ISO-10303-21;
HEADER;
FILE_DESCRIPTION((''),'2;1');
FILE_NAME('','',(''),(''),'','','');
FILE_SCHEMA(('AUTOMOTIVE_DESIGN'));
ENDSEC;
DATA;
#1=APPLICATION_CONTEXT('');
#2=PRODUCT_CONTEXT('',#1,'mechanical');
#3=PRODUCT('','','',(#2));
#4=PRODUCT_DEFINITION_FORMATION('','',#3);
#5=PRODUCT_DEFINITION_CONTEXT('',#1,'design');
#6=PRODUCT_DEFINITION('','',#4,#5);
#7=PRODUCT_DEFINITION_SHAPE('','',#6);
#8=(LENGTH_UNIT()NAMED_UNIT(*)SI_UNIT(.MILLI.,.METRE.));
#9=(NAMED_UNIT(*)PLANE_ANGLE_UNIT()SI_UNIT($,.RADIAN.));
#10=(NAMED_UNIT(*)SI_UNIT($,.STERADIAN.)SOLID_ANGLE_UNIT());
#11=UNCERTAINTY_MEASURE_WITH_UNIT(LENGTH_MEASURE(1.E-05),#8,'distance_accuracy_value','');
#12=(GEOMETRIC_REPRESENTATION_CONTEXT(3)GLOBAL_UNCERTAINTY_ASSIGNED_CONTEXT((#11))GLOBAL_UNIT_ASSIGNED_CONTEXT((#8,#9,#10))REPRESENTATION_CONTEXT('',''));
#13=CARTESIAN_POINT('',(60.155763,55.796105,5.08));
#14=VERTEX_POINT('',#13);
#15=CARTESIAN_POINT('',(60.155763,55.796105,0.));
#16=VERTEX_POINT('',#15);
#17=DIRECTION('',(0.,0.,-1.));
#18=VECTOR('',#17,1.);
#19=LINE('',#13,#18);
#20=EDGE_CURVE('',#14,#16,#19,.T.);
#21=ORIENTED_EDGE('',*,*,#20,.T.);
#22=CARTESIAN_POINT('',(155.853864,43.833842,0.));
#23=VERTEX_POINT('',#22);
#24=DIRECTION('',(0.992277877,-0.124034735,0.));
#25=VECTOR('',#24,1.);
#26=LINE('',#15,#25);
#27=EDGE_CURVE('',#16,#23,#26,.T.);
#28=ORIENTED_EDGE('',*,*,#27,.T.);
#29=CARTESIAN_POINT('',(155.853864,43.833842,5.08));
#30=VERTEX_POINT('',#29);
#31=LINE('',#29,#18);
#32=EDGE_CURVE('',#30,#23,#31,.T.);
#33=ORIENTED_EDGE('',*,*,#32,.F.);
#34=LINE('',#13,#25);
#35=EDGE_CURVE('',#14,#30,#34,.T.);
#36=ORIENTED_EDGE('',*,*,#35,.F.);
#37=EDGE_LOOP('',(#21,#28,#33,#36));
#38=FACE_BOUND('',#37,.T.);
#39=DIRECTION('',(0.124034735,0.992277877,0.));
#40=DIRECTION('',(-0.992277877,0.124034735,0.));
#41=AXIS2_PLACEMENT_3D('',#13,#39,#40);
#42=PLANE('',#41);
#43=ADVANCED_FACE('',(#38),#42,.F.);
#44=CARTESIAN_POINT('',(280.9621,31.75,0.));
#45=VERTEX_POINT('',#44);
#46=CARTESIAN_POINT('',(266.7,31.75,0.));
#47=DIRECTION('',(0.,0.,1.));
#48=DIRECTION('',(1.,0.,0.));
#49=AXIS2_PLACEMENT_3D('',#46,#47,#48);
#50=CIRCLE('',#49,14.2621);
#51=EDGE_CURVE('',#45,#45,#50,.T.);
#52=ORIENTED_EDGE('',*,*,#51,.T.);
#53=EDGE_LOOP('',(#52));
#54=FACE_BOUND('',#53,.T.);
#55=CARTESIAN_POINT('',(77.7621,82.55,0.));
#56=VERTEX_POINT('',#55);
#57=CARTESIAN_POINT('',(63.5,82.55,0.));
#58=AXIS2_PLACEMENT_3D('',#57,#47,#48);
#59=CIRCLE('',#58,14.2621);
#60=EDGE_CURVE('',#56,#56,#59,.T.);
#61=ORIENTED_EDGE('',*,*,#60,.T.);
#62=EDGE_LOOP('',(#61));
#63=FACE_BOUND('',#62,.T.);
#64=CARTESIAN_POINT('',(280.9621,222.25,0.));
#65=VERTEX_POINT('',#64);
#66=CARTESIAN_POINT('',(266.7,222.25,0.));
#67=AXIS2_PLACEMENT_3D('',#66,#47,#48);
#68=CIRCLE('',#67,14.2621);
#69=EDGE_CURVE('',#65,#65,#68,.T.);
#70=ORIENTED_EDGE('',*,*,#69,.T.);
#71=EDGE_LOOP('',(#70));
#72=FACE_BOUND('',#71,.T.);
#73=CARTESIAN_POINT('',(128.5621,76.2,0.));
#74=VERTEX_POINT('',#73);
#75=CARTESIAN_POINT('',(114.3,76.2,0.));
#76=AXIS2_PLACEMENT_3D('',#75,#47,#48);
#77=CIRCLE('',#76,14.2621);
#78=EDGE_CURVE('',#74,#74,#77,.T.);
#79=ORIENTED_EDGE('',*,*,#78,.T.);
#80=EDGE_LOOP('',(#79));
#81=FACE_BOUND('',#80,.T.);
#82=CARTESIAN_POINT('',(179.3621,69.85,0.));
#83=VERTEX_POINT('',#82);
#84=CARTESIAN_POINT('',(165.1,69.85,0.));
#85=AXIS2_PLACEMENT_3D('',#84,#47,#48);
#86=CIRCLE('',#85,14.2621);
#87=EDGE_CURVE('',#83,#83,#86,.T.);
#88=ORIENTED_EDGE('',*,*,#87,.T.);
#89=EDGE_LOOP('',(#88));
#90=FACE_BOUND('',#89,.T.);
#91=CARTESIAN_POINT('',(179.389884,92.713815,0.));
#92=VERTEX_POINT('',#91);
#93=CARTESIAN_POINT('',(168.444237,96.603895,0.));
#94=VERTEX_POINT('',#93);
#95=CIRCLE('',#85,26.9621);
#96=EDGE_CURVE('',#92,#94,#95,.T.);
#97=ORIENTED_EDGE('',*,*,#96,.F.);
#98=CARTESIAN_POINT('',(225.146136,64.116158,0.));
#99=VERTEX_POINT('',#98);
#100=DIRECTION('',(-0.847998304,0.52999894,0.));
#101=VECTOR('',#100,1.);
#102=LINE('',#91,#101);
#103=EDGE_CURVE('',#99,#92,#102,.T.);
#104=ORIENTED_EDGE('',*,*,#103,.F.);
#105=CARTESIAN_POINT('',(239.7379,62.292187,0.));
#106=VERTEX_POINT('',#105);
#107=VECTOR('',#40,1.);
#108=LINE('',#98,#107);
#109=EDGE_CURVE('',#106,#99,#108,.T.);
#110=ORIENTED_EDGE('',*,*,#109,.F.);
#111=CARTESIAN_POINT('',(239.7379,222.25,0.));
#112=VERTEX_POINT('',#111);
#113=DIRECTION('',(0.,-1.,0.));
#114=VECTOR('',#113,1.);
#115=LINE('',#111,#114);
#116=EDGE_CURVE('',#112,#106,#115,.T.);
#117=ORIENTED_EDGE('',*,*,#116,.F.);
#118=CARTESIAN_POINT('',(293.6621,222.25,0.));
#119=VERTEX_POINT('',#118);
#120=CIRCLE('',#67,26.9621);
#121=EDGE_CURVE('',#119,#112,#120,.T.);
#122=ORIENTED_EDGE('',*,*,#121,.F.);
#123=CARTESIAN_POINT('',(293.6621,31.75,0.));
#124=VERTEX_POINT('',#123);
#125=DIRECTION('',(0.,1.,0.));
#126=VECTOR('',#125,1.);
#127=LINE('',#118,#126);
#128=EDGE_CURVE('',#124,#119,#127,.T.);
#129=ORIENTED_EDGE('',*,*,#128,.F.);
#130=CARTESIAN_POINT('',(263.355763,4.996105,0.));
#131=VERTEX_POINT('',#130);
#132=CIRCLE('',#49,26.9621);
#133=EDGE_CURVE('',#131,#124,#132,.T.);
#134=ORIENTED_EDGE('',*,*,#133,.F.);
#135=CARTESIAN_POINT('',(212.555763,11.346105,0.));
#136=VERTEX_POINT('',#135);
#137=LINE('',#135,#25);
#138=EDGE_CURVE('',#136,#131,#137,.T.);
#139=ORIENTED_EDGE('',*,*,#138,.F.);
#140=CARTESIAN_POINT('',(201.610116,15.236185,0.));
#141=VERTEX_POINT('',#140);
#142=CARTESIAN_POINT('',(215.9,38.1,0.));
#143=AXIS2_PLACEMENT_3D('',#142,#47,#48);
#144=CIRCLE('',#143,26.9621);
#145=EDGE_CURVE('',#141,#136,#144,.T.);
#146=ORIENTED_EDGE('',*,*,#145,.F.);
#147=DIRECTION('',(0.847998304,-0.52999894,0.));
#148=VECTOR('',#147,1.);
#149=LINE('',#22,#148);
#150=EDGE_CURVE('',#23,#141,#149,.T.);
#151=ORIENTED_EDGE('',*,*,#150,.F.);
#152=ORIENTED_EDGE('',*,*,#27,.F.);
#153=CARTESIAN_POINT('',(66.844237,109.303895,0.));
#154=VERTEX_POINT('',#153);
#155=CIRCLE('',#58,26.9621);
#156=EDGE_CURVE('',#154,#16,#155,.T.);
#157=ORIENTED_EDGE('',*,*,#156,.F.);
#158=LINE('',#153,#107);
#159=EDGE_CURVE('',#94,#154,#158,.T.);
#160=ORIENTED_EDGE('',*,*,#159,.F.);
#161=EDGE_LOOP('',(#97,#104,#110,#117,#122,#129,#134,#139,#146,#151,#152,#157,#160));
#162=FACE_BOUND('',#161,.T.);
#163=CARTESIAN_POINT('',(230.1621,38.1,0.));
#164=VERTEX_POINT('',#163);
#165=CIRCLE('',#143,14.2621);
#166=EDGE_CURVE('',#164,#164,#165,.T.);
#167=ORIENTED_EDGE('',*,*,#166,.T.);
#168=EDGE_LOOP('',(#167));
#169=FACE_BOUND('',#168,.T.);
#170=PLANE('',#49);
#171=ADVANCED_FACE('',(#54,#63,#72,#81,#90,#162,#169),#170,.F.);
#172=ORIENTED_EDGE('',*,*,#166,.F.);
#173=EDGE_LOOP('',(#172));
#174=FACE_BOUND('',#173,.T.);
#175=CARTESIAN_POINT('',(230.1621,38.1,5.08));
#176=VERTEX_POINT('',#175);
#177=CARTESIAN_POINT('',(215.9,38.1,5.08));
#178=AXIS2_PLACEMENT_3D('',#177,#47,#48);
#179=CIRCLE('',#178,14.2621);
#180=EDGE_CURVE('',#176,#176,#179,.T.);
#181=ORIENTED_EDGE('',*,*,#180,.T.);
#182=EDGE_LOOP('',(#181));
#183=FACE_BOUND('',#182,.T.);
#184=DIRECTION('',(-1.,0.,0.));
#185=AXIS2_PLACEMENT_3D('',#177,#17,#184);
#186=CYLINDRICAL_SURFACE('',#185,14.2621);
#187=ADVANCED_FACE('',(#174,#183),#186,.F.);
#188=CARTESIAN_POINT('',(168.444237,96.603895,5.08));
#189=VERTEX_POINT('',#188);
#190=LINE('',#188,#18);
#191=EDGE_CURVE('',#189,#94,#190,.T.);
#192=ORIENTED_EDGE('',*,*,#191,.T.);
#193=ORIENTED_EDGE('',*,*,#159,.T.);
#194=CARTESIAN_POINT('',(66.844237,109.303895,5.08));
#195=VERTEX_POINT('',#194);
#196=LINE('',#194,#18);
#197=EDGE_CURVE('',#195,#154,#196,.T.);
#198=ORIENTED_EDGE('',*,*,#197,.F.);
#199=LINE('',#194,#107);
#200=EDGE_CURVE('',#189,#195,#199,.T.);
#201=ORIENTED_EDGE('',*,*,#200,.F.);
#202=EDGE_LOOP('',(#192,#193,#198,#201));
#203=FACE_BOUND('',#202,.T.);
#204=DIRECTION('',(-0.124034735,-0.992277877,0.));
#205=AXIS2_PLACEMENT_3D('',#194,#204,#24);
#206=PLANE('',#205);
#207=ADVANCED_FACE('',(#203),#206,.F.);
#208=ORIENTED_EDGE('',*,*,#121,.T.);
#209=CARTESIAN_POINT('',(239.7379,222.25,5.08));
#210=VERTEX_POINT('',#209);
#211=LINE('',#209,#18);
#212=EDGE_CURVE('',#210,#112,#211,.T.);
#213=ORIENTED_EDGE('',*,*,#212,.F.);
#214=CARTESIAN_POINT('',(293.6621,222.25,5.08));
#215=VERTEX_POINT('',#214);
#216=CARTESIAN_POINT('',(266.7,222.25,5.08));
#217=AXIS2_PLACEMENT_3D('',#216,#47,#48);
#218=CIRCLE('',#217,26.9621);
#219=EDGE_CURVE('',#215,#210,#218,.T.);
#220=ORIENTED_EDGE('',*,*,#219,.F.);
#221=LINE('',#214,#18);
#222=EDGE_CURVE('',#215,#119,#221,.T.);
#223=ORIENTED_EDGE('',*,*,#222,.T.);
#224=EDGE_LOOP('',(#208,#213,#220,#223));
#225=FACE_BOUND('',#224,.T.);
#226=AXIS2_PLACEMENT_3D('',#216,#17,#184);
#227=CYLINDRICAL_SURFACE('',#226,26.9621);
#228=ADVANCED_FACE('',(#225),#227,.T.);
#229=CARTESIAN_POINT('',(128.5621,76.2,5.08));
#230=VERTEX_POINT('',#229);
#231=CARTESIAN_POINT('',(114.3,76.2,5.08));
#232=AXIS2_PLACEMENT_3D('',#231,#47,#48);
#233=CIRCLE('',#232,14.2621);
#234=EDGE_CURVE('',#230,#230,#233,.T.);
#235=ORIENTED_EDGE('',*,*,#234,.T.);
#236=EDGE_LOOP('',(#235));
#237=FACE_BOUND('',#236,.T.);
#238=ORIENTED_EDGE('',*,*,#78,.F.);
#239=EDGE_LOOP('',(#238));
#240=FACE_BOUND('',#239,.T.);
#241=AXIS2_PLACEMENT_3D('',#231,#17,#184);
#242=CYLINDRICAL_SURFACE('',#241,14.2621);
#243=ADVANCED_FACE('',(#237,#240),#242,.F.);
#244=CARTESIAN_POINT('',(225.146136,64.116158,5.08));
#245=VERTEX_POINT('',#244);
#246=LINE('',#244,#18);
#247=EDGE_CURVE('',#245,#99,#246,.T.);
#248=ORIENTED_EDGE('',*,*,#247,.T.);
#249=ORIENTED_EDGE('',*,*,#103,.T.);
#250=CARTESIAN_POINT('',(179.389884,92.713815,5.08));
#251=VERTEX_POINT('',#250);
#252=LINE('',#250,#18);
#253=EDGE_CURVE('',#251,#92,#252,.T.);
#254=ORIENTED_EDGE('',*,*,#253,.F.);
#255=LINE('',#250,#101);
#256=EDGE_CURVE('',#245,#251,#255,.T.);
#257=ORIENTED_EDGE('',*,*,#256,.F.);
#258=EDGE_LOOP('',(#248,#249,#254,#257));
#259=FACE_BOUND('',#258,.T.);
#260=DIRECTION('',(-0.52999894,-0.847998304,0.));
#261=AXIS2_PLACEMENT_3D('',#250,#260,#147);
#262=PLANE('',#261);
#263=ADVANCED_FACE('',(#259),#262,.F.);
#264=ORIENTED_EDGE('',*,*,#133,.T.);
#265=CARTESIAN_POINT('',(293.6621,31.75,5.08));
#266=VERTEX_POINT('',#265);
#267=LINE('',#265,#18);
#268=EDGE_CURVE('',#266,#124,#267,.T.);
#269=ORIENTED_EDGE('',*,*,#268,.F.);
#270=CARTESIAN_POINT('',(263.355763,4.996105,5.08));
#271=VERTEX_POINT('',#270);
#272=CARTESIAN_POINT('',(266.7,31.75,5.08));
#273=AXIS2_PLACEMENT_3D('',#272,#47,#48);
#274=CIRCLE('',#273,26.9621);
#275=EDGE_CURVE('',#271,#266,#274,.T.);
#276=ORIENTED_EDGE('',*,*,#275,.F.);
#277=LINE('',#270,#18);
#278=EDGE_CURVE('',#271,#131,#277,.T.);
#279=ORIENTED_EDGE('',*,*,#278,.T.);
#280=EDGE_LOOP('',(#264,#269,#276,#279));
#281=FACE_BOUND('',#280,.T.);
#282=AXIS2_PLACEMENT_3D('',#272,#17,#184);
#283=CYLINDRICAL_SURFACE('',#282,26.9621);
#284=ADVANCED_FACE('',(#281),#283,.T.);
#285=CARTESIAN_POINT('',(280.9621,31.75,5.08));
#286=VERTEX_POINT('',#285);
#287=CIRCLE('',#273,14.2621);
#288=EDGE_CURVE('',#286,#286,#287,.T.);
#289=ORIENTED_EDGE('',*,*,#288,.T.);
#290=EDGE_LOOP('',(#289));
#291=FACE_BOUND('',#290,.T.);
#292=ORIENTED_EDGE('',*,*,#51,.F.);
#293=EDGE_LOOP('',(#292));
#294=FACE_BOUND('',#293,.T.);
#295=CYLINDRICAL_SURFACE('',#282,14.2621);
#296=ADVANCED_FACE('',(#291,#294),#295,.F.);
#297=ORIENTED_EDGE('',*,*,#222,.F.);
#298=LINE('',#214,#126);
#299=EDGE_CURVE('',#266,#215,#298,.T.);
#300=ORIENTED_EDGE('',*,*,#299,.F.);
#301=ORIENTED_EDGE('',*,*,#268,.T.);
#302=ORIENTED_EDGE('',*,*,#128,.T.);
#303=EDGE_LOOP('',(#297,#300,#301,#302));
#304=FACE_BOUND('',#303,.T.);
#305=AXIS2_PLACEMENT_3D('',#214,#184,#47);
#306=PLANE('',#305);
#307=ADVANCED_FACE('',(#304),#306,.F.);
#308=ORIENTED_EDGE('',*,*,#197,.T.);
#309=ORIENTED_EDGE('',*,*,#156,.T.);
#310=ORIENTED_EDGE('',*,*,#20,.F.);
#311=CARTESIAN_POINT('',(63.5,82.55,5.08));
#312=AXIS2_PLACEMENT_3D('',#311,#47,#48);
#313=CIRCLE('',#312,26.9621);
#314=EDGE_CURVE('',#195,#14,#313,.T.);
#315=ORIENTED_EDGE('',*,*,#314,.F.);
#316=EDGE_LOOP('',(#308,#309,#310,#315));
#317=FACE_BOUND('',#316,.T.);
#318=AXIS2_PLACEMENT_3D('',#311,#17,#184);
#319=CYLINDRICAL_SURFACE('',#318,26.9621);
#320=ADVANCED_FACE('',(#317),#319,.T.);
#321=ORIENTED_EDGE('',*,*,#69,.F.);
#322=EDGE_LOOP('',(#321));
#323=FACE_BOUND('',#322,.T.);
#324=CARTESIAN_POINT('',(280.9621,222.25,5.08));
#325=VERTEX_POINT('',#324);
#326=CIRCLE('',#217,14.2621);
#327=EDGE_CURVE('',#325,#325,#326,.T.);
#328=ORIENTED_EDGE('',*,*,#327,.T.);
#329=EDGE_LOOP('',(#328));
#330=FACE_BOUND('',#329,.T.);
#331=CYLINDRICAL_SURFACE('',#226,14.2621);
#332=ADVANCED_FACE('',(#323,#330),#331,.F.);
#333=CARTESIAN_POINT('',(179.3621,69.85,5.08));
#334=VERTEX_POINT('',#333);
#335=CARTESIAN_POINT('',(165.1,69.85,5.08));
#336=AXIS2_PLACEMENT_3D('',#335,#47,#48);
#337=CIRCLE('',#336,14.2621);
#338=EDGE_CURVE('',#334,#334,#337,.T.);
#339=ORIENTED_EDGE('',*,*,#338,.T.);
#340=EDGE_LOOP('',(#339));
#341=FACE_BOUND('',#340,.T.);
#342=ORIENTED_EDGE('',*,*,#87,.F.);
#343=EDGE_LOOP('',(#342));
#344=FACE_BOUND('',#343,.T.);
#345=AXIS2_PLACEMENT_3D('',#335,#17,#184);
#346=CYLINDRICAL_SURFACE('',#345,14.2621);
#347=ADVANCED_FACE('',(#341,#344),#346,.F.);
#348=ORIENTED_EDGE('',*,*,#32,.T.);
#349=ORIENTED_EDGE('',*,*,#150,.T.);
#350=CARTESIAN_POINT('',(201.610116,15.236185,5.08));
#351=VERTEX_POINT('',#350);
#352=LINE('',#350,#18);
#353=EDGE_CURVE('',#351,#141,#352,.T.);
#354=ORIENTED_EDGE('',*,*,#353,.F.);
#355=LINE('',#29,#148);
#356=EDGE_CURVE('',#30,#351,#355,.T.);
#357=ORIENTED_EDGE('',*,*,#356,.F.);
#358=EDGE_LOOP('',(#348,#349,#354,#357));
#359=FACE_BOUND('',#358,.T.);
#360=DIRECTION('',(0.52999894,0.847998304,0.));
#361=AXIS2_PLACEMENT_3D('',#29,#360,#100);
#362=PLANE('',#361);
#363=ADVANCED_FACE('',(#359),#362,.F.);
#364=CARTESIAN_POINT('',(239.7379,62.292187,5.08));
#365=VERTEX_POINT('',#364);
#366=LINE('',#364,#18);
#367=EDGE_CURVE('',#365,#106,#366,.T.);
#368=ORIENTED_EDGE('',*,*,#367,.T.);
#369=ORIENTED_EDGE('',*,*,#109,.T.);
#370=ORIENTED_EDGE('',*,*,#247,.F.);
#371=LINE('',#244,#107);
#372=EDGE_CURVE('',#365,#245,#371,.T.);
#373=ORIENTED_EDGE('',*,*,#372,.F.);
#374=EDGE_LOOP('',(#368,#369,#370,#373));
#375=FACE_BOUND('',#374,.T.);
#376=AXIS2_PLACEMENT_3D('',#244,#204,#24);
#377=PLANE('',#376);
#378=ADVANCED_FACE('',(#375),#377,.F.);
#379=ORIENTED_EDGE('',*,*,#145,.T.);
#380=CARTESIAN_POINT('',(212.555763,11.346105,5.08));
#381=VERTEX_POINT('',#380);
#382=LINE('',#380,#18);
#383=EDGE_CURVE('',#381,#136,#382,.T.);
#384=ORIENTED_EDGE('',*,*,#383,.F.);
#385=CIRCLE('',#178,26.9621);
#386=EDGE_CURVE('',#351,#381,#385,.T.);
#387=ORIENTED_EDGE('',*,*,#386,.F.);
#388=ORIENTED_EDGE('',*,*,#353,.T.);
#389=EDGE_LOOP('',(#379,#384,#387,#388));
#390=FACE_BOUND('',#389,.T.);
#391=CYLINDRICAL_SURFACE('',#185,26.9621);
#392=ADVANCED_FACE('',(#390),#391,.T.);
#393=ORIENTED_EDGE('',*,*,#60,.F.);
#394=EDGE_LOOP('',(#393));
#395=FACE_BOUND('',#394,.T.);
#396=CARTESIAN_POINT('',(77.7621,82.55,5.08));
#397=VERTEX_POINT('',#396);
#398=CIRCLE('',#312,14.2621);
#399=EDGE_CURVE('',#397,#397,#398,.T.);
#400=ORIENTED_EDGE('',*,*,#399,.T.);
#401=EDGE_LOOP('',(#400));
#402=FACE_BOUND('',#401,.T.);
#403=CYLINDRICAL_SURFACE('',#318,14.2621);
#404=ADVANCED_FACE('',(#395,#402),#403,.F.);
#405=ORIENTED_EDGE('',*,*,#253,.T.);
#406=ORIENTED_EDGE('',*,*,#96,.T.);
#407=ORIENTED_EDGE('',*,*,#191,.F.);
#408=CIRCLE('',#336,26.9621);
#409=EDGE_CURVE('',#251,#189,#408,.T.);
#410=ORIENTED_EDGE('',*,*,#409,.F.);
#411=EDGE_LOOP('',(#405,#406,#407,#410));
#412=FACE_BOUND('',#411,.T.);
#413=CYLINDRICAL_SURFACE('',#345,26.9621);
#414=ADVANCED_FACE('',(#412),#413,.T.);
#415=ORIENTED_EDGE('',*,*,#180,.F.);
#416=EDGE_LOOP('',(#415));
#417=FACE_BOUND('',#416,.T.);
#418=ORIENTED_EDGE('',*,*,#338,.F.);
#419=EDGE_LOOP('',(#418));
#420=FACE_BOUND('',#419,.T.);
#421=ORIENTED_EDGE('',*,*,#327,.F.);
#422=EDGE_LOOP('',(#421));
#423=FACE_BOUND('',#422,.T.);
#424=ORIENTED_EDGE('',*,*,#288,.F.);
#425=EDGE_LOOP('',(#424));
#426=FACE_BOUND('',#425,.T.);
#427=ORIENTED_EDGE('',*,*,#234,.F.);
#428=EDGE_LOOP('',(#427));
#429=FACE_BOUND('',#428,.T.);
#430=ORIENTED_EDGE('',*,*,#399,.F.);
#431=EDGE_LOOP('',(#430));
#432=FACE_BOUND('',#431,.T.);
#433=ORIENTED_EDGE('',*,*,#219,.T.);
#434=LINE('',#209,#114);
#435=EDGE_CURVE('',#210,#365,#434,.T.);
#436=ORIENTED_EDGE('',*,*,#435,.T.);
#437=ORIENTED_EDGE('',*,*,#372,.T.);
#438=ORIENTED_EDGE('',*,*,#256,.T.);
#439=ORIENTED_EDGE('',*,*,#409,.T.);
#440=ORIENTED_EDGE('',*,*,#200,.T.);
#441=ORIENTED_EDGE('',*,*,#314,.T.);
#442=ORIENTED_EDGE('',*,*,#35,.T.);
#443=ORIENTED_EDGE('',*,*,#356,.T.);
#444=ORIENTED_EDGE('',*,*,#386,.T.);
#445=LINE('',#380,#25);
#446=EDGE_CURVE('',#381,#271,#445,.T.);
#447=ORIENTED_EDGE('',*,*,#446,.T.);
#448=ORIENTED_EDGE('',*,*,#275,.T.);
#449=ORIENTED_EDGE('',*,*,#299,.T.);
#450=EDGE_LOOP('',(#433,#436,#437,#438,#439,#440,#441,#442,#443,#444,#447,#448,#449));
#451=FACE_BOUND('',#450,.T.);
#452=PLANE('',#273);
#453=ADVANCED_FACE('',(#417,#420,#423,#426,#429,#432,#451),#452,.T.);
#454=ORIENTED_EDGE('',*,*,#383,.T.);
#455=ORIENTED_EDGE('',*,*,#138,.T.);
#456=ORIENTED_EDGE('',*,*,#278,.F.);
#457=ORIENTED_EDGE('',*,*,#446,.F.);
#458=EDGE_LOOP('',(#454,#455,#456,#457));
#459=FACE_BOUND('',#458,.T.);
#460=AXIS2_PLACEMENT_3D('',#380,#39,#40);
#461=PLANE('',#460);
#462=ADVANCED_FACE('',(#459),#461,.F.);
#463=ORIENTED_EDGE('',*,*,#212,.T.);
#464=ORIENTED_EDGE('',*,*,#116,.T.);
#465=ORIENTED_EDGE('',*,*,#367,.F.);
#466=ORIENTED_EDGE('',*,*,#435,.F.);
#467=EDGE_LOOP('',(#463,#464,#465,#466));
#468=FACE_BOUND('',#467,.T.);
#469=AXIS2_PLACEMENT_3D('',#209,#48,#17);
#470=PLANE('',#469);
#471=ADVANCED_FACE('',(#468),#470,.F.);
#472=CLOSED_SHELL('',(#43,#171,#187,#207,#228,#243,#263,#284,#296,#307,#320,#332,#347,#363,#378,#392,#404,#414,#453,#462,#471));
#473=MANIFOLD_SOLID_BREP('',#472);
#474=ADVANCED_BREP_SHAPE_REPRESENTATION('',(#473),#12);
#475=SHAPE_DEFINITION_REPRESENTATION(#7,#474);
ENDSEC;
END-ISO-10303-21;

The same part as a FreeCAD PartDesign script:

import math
import FreeCAD as App
import Part
import Sketcher
from FreeCAD import Vector
Q = App.Units.Quantity

doc = App.newDocument("Part")
body = doc.addObject("PartDesign::Body", "Body")

# Sketch on XY plane
sketch1 = body.newObject("Sketcher::SketchObject", "Sketch")
sketch1.AttachmentSupport = (doc.getObject("XY_Plane"), [""])
sketch1.MapMode = "FlatFace"
sketch1.addGeometry([
    Part.LineSegment(Vector(293.6621, 31.75, 0), Vector(293.6621, 222.25, 0)),  # 0
    Part.ArcOfCircle(Part.Circle(Vector(266.7, 222.25, 0), Vector(0, 0, 1), 26.9621), math.radians(0), math.radians(180)),  # 1
    Part.LineSegment(Vector(239.7379, 222.25, 0), Vector(239.7379, 62.292187, 0)),  # 2
    Part.LineSegment(Vector(239.7379, 62.292187, 0), Vector(225.146136, 64.116158, 0)),  # 3
    Part.LineSegment(Vector(225.146136, 64.116158, 0), Vector(179.389884, 92.713815, 0)),  # 4
    Part.ArcOfCircle(Part.Circle(Vector(165.1, 69.85, 0), Vector(0, 0, 1), 26.9621), math.radians(57.994617), math.radians(82.874984)),  # 5
    Part.LineSegment(Vector(168.444237, 96.603895, 0), Vector(66.844237, 109.303895, 0)),  # 6
    Part.ArcOfCircle(Part.Circle(Vector(63.5, 82.55, 0), Vector(0, 0, 1), 26.9621), math.radians(82.874984), math.radians(262.874984)),  # 7
    Part.LineSegment(Vector(60.155763, 55.796105, 0), Vector(155.853864, 43.833842, 0)),  # 8
    Part.LineSegment(Vector(155.853864, 43.833842, 0), Vector(201.610116, 15.236185, 0)),  # 9
    Part.ArcOfCircle(Part.Circle(Vector(215.9, 38.1, 0), Vector(0, 0, 1), 26.9621), math.radians(-122.005383), math.radians(-97.125016)),  # 10
    Part.LineSegment(Vector(212.555763, 11.346105, 0), Vector(263.355763, 4.996105, 0)),  # 11
    Part.ArcOfCircle(Part.Circle(Vector(266.7, 31.75, 0), Vector(0, 0, 1), 26.9621), math.radians(-97.125016), math.radians(0)),  # 12
    Part.Circle(Vector(266.7, 31.75, 0), Vector(0, 0, 1), 14.2621),  # 13
    Part.Circle(Vector(215.9, 38.1, 0), Vector(0, 0, 1), 14.2621),  # 14
    Part.Circle(Vector(165.1, 69.85, 0), Vector(0, 0, 1), 14.2621),  # 15
    Part.Circle(Vector(114.3, 76.2, 0), Vector(0, 0, 1), 14.2621),  # 16
    Part.Circle(Vector(63.5, 82.55, 0), Vector(0, 0, 1), 14.2621),  # 17
    Part.Circle(Vector(266.7, 222.25, 0), Vector(0, 0, 1), 14.2621),  # 18
], False)
sketch1.addConstraint([
    Sketcher.Constraint("Tangent", 0, 2, 1, 1),
    Sketcher.Constraint("Tangent", 1, 2, 2, 1),
    Sketcher.Constraint("Coincident", 2, 2, 3, 1),
    Sketcher.Constraint("Coincident", 3, 2, 4, 1),
    Sketcher.Constraint("Tangent", 4, 2, 5, 1),
    Sketcher.Constraint("Tangent", 5, 2, 6, 1),
    Sketcher.Constraint("Tangent", 6, 2, 7, 1),
    Sketcher.Constraint("Tangent", 7, 2, 8, 1),
    Sketcher.Constraint("Coincident", 8, 2, 9, 1),
    Sketcher.Constraint("Tangent", 9, 2, 10, 1),
    Sketcher.Constraint("Tangent", 10, 2, 11, 1),
    Sketcher.Constraint("Tangent", 11, 2, 12, 1),
    Sketcher.Constraint("Tangent", 12, 2, 0, 1),
    Sketcher.Constraint("Vertical", 0),
    Sketcher.Constraint("Vertical", 2),
    Sketcher.Constraint("Coincident", 13, 3, 12, 3),
    Sketcher.Constraint("Coincident", 14, 3, 10, 3),
    Sketcher.Constraint("Coincident", 15, 3, 5, 3),
    Sketcher.Constraint("Coincident", 17, 3, 7, 3),
    Sketcher.Constraint("Coincident", 18, 3, 1, 3),
    Sketcher.Constraint("Equal", 1, 5),
    Sketcher.Constraint("Equal", 5, 7),
    Sketcher.Constraint("Equal", 7, 10),
    Sketcher.Constraint("Equal", 10, 12),
    Sketcher.Constraint("Equal", 13, 14),
    Sketcher.Constraint("Equal", 14, 15),
    Sketcher.Constraint("Equal", 15, 16),
    Sketcher.Constraint("Equal", 16, 17),
    Sketcher.Constraint("Equal", 17, 18),
    Sketcher.Constraint("Parallel", 3, 6),
    Sketcher.Constraint("Parallel", 6, 8),
    Sketcher.Constraint("Parallel", 4, 9),
    Sketcher.Constraint("Parallel", 8, 11),
    Sketcher.Constraint("Equal", 4, 9),
    Sketcher.Constraint("Diameter", 13, Q("1.123 in")),
    Sketcher.Constraint("DistanceY", 0, 1, 0, 2, Q("7.5 in")),
    Sketcher.Constraint("DistanceY", -1, 1, 16, 3, Q("3 in")),
    Sketcher.Constraint("DistanceX", 5, 3, 1, 3, Q("4 in")),
    Sketcher.Constraint("DistanceY", 5, 3, 1, 3, Q("6 in")),
    Sketcher.Constraint("DistanceX", 7, 3, 5, 3, Q("4 in")),
    Sketcher.Constraint("DistanceX", 5, 3, 10, 3, Q("2 in")),
    Sketcher.Constraint("DistanceY", 12, 3, 7, 3, Q("2 in")),
    Sketcher.Constraint("DistanceX", 16, 3, 5, 3, Q("2 in")),
    Sketcher.Constraint("DistanceX", -1, 1, 1, 3, Q("10.5 in")),
    Sketcher.Constraint("DistanceY", -1, 1, 10, 3, Q("1.5 in")),
    Sketcher.Constraint("Radius", 1, Q("1.0615 in")),
    Sketcher.Constraint("DistanceX", 5, 2, 3, 2, 56.701899),
])
pad1 = body.newObject("PartDesign::Pad", "Pad")
pad1.Profile = sketch1
pad1.Length = Q("0.2 in")

doc.recompute()
